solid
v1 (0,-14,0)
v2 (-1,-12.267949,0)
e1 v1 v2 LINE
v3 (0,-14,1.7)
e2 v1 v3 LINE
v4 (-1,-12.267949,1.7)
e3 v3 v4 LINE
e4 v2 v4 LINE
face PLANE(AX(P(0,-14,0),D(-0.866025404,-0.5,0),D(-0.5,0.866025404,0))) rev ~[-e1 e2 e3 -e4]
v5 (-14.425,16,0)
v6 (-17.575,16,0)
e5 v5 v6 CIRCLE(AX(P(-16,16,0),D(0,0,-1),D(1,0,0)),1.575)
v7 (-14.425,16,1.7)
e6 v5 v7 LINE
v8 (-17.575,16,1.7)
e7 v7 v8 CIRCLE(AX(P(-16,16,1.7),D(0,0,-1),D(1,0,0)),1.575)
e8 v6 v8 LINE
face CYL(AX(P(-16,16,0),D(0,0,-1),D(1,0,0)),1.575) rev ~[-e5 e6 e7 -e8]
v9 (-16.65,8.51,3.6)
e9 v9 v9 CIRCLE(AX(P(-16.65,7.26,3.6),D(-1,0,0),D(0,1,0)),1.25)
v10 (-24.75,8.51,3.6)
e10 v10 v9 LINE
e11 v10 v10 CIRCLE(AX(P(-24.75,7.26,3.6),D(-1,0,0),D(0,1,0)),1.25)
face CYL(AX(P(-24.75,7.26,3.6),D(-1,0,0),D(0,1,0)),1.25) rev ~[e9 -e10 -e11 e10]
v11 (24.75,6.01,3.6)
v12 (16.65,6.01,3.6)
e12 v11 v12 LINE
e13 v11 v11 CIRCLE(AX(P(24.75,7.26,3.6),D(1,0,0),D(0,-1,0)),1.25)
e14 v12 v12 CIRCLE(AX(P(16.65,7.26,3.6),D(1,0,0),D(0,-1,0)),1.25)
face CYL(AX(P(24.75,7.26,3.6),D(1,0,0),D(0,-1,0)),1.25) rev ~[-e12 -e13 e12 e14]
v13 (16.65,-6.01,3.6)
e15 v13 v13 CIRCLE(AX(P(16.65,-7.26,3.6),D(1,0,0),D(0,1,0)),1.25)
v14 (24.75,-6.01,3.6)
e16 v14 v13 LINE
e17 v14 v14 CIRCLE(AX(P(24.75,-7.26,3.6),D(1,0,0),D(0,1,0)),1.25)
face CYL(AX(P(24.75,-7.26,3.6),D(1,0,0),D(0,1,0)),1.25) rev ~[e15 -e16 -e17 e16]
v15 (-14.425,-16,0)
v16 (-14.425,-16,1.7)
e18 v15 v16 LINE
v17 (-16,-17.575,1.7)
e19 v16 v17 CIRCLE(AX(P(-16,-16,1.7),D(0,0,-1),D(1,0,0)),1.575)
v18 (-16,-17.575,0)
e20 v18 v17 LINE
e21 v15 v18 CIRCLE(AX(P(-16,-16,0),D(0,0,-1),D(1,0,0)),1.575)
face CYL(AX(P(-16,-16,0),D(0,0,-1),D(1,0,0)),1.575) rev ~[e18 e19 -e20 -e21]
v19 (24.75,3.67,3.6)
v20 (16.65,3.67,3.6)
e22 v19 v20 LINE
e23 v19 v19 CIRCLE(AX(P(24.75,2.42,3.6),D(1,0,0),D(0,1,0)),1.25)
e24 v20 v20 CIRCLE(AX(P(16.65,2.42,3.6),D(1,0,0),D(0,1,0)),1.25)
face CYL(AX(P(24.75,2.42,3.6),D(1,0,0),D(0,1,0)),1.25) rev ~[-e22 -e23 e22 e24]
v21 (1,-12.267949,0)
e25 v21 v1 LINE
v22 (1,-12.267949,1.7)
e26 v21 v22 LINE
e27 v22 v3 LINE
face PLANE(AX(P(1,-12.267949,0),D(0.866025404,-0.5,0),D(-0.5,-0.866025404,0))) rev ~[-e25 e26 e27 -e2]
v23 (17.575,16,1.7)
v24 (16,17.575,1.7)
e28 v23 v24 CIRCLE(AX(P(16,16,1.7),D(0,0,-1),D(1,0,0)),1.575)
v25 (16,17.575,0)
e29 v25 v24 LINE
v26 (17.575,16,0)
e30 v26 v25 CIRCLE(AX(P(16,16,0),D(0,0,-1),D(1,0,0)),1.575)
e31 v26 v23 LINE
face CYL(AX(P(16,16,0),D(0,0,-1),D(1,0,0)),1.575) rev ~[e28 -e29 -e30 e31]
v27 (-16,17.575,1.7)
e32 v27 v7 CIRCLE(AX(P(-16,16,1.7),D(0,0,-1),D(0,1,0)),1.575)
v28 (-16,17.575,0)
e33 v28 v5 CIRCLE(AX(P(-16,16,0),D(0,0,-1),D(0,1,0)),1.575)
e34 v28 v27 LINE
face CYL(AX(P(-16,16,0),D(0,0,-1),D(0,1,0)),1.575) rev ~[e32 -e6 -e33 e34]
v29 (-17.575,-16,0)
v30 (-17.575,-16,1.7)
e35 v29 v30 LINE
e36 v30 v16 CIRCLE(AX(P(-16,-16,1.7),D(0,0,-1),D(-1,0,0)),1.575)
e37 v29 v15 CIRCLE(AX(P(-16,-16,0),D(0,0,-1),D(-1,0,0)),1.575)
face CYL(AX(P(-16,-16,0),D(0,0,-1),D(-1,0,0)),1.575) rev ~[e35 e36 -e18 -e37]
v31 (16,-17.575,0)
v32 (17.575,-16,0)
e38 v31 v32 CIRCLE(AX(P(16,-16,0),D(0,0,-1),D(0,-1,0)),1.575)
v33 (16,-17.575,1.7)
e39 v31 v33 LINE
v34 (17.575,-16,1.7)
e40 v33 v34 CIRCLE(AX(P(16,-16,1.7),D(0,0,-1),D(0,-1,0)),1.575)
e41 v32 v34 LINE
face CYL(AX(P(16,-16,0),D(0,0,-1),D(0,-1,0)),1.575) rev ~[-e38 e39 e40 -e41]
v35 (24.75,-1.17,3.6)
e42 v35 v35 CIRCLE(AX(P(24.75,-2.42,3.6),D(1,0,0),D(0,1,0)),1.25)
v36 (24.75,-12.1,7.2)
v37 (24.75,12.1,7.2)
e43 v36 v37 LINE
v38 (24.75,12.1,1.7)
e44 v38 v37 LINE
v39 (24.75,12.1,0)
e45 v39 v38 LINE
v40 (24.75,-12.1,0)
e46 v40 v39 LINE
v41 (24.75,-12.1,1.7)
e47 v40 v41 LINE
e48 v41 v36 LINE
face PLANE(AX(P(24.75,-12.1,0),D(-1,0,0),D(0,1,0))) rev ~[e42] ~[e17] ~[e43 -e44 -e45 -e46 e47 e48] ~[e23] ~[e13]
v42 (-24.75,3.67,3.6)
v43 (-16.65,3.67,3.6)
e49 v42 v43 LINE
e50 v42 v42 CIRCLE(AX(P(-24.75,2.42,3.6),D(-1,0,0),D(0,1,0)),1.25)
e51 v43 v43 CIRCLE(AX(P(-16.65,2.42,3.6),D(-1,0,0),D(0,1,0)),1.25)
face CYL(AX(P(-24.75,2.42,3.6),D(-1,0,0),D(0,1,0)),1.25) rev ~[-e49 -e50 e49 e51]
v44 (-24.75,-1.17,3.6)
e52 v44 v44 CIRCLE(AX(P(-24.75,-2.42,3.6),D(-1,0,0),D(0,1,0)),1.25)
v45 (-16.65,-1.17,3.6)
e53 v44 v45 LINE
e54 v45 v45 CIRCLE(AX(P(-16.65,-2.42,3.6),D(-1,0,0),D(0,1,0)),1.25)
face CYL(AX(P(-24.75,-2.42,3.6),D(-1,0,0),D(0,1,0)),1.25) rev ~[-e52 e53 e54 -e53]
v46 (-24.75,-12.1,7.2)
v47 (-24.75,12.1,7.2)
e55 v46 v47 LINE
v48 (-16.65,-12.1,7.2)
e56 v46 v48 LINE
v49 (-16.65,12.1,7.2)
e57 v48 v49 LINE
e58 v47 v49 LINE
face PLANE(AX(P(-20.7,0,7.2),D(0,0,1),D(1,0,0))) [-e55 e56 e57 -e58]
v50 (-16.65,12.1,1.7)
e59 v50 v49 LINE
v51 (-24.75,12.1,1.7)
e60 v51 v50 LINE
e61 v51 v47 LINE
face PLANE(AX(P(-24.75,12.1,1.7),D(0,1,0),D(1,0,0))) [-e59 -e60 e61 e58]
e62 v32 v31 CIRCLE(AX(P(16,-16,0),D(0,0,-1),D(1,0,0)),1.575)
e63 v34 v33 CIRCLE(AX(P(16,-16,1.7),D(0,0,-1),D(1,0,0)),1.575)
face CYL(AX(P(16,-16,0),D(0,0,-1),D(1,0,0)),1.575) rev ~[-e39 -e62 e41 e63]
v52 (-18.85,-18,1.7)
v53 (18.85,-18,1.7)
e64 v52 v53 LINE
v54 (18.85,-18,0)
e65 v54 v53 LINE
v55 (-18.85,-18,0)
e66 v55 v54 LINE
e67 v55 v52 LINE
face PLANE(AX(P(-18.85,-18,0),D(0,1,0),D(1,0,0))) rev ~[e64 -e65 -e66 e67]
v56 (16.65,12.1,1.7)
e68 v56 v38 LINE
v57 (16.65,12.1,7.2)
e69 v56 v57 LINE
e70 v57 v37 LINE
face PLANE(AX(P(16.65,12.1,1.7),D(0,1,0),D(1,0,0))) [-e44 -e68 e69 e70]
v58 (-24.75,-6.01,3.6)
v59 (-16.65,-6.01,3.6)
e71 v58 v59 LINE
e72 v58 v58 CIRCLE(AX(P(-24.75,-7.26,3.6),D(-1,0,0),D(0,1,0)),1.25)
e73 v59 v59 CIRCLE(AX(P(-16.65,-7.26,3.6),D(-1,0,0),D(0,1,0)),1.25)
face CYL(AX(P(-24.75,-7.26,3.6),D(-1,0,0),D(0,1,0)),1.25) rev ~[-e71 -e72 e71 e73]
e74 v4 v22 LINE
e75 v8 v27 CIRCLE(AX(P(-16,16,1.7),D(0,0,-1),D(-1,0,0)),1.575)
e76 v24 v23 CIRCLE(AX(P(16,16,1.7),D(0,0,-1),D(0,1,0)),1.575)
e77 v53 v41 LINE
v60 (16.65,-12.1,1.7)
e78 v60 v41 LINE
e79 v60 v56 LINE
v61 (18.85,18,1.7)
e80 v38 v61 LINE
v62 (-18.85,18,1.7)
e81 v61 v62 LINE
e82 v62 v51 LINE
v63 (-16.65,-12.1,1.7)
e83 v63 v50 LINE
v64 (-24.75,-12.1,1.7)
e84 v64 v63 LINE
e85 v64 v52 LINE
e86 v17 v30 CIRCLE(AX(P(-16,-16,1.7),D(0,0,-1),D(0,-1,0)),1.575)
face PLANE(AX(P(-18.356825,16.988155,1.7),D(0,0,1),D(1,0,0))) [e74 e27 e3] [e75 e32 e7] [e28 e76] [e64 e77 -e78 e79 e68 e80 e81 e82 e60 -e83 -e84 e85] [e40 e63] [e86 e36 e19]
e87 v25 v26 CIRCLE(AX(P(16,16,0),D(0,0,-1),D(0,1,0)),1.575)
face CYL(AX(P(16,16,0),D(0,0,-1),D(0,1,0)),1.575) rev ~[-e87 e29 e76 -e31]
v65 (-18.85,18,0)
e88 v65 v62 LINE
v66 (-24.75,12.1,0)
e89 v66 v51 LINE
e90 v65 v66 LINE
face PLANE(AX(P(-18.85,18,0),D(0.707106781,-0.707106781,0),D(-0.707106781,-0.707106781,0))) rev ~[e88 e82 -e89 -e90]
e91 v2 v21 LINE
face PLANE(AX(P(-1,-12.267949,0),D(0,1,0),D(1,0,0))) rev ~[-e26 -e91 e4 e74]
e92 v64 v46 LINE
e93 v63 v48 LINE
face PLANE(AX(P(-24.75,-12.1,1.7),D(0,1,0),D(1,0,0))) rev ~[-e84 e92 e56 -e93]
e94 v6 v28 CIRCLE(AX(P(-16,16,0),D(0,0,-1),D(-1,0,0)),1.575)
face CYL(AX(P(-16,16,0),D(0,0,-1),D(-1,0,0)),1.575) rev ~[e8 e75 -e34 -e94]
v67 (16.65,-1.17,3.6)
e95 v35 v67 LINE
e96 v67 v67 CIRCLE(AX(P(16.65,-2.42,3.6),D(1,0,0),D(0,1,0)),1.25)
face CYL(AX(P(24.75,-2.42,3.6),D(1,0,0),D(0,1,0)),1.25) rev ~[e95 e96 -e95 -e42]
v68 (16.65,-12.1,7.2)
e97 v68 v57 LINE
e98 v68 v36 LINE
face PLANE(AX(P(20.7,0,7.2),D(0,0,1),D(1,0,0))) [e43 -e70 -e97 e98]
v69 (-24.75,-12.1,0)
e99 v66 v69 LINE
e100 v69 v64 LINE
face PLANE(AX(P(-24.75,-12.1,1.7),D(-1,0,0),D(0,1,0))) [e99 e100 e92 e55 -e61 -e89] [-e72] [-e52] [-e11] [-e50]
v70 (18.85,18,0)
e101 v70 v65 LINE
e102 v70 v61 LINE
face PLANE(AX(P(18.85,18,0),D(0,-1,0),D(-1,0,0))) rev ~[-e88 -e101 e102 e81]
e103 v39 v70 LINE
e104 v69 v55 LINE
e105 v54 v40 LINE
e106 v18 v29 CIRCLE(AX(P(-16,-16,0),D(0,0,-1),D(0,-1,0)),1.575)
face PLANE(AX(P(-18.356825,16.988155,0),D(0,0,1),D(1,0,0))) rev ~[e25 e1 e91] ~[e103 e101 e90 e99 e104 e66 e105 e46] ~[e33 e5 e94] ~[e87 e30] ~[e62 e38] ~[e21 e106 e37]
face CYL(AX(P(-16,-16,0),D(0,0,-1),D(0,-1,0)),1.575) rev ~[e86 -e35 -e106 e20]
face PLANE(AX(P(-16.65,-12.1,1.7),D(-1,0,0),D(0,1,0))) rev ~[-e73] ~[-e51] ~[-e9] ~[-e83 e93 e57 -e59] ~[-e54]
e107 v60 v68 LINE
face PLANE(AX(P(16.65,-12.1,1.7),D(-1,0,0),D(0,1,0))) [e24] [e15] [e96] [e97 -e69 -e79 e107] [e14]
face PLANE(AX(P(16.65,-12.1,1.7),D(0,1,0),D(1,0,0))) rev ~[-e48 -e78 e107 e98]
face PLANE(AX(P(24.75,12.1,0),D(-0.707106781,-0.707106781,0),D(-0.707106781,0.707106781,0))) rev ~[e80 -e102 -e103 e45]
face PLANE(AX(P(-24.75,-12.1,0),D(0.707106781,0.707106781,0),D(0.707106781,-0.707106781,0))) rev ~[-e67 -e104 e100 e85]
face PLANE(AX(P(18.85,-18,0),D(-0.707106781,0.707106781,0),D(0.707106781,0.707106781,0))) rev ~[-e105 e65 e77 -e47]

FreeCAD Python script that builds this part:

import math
import FreeCAD as App
import Part
import Sketcher
from FreeCAD import Vector
Q = App.Units.Quantity

doc = App.newDocument("Part")
body = doc.addObject("PartDesign::Body", "Body")

sketch1 = body.newObject("Sketcher::SketchObject", "Sketch")
sketch1.AttachmentSupport = (doc.getObject("XY_Plane"), [""])
sketch1.MapMode = "FlatFace"
sketch1.addGeometry([
    Part.LineSegment(Vector(-18.85, 18, 0), Vector(-24.75, 12.1, 0)),
    Part.LineSegment(Vector(-24.75, 12.1, 0), Vector(-24.75, -12.1, 0)),
    Part.LineSegment(Vector(-24.75, -12.1, 0), Vector(-18.85, -18, 0)),
    Part.LineSegment(Vector(-18.85, -18, 0), Vector(18.85, -18, 0)),
    Part.LineSegment(Vector(18.85, -18, 0), Vector(24.75, -12.1, 0)),
    Part.LineSegment(Vector(24.75, -12.1, 0), Vector(24.75, 12.1, 0)),
    Part.LineSegment(Vector(24.75, 12.1, 0), Vector(18.85, 18, 0)),
    Part.LineSegment(Vector(18.85, 18, 0), Vector(-18.85, 18, 0)),
    Part.ArcOfCircle(Part.Circle(Vector(-16, -16, 0), Vector(0, 0, 1), 1.575), math.radians(0), math.radians(180)),
    Part.ArcOfCircle(Part.Circle(Vector(-16, -16, 0), Vector(0, 0, 1), 1.575), math.radians(-90), math.radians(0)),
    Part.ArcOfCircle(Part.Circle(Vector(-16, -16, 0), Vector(0, 0, 1), 1.575), math.radians(180), math.radians(270)),
    Part.ArcOfCircle(Part.Circle(Vector(16, -16, 0), Vector(0, 0, 1), 1.575), math.radians(0), math.radians(270)),
    Part.ArcOfCircle(Part.Circle(Vector(16, -16, 0), Vector(0, 0, 1), 1.575), math.radians(-90), math.radians(0)),
    Part.ArcOfCircle(Part.Circle(Vector(16, 16, 0), Vector(0, 0, 1), 1.575), math.radians(90), math.radians(360)),
    Part.ArcOfCircle(Part.Circle(Vector(16, 16, 0), Vector(0, 0, 1), 1.575), math.radians(0), math.radians(90)),
    Part.LineSegment(Vector(-1, -12.267949, 0), Vector(1, -12.267949, 0)),
    Part.LineSegment(Vector(1, -12.267949, 0), Vector(0, -14, 0)),
    Part.LineSegment(Vector(0, -14, 0), Vector(-1, -12.267949, 0)),
    Part.ArcOfCircle(Part.Circle(Vector(-16, 16, 0), Vector(0, 0, 1), 1.575), math.radians(90), math.radians(180)),
    Part.ArcOfCircle(Part.Circle(Vector(-16, 16, 0), Vector(0, 0, 1), 1.575), math.radians(0), math.radians(90)),
    Part.ArcOfCircle(Part.Circle(Vector(-16, 16, 0), Vector(0, 0, 1), 1.575), math.radians(180), math.radians(360)),
], False)
sketch1.addConstraint([
    Sketcher.Constraint("Coincident", 0, 2, 1, 1),
    Sketcher.Constraint("Coincident", 1, 2, 2, 1),
    Sketcher.Constraint("Coincident", 2, 2, 3, 1),
    Sketcher.Constraint("Coincident", 3, 2, 4, 1),
    Sketcher.Constraint("Coincident", 4, 2, 5, 1),
    Sketcher.Constraint("Coincident", 5, 2, 6, 1),
    Sketcher.Constraint("Coincident", 6, 2, 7, 1),
    Sketcher.Constraint("Coincident", 7, 2, 0, 1),
    Sketcher.Constraint("Tangent", 8, 1, 9, 2),
    Sketcher.Constraint("Tangent", 9, 1, 10, 2),
    Sketcher.Constraint("Tangent", 10, 1, 8, 2),
    Sketcher.Constraint("Tangent", 11, 1, 12, 2),
    Sketcher.Constraint("Coincident", 12, 1, 11, 2),
    Sketcher.Constraint("Tangent", 13, 1, 14, 2),
    Sketcher.Constraint("Coincident", 14, 1, 13, 2),
    Sketcher.Constraint("Coincident", 15, 2, 16, 1),
    Sketcher.Constraint("Coincident", 16, 2, 17, 1),
    Sketcher.Constraint("Coincident", 17, 2, 15, 1),
    Sketcher.Constraint("Tangent", 18, 1, 19, 2),
    Sketcher.Constraint("Tangent", 19, 1, 20, 2),
    Sketcher.Constraint("Tangent", 20, 1, 18, 2),
    Sketcher.Constraint("Vertical", 1),
    Sketcher.Constraint("Horizontal", 3),
    Sketcher.Constraint("Vertical", 5),
    Sketcher.Constraint("Horizontal", 7),
    Sketcher.Constraint("Horizontal", 15),
    Sketcher.Constraint("Equal", 10, 11),
    Sketcher.Constraint("Equal", 12, 13),
    Sketcher.Constraint("Equal", 14, 18),
    Sketcher.Constraint("Symmetric", 8, 3, 13, 3, -1, 1),
    Sketcher.Constraint("Symmetric", 11, 3, 18, 3, -1, 1),
    Sketcher.Constraint("Symmetric", 0, 2, 4, 2, -1, 1),
    Sketcher.Constraint("Symmetric", 2, 2, 6, 2, -1, 1),
    Sketcher.Constraint("Symmetric", 8, 3, 11, 3, -2),
    Sketcher.Constraint("PointOnObject", 16, 2, -2),
    Sketcher.Constraint("Perpendicular", 0, 2),
    Sketcher.Constraint("Perpendicular", 2, 4),
    Sketcher.Constraint("Perpendicular", 4, 6),
    Sketcher.Constraint("Horizontal", 1, 2, 4, 2),
    Sketcher.Constraint("Horizontal", 12, 3, 8, 1),
    Sketcher.Constraint("Horizontal", 8, 1, 10, 1),
    Sketcher.Constraint("Horizontal", 10, 1, 11, 1),
    Sketcher.Constraint("Horizontal", 20, 3, 14, 1),
    Sketcher.Constraint("Horizontal", 14, 1, 19, 1),
    Sketcher.Constraint("Horizontal", 19, 1, 20, 1),
    Sketcher.Constraint("Vertical", 3, 2, 6, 2),
    Sketcher.Constraint("Vertical", 20, 3, 9, 1),
    Sketcher.Constraint("Vertical", 14, 3, 12, 1),
    Sketcher.Constraint("Vertical", 12, 1, 13, 1),
    Sketcher.Constraint("Vertical", 9, 1, 18, 1),
    Sketcher.Constraint("Equal", 16, 17),
    Sketcher.Constraint("DistanceX", 15, 1, 15, 2, Q("2 mm")),
    Sketcher.Constraint("Angle", 16, Q("-120 deg")),
    Sketcher.Constraint("DistanceX", 3, 1, 3, 2, Q("37.7 mm")),
    Sketcher.Constraint("DistanceY", 1, 2, 1, 1, Q("24.2 mm")),
    Sketcher.Constraint("DistanceX", 8, 3, -1, 1, Q("16 mm")),
    Sketcher.Constraint("DistanceY", 8, 3, -1, 1, Q("16 mm")),
    Sketcher.Constraint("DistanceY", 2, 2, -1, 1, Q("18 mm")),
    Sketcher.Constraint("DistanceY", 16, 2, -1, 1, Q("14 mm")),
    Sketcher.Constraint("Radius", 8, Q("1.575 mm")),
])
pad1 = body.newObject("PartDesign::Pad", "Pad")
pad1.Profile = sketch1
pad1.Length = 1.7

sketch2 = body.newObject("Sketcher::SketchObject", "Sketch001")
sketch2.AttachmentSupport = (doc.getObject("XY_Plane"), [""])
sketch2.MapMode = "FlatFace"
sketch2.AttachmentOffset = App.Placement(Vector(0, 0, 1.7), App.Rotation())
sketch2.addGeometry([
    Part.LineSegment(Vector(-24.75, 12.1, 0), Vector(-24.75, -12.1, 0)),
    Part.LineSegment(Vector(-24.75, -12.1, 0), Vector(-16.65, -12.1, 0)),
    Part.LineSegment(Vector(-16.65, -12.1, 0), Vector(-16.65, 12.1, 0)),
    Part.LineSegment(Vector(-16.65, 12.1, 0), Vector(-24.75, 12.1, 0)),
    Part.LineSegment(Vector(16.65, 12.1, 0), Vector(16.65, -12.1, 0)),
    Part.LineSegment(Vector(16.65, -12.1, 0), Vector(24.75, -12.1, 0)),
    Part.LineSegment(Vector(24.75, -12.1, 0), Vector(24.75, 12.1, 0)),
    Part.LineSegment(Vector(24.75, 12.1, 0), Vector(16.65, 12.1, 0)),
], False)
sketch2.addConstraint([
    Sketcher.Constraint("Coincident", 0, 2, 1, 1),
    Sketcher.Constraint("Coincident", 1, 2, 2, 1),
    Sketcher.Constraint("Coincident", 2, 2, 3, 1),
    Sketcher.Constraint("Coincident", 3, 2, 0, 1),
    Sketcher.Constraint("Coincident", 4, 2, 5, 1),
    Sketcher.Constraint("Coincident", 5, 2, 6, 1),
    Sketcher.Constraint("Coincident", 6, 2, 7, 1),
    Sketcher.Constraint("Coincident", 7, 2, 4, 1),
    Sketcher.Constraint("Vertical", 0),
    Sketcher.Constraint("Horizontal", 1),
    Sketcher.Constraint("Vertical", 2),
    Sketcher.Constraint("Horizontal", 3),
    Sketcher.Constraint("Vertical", 4),
    Sketcher.Constraint("Horizontal", 5),
    Sketcher.Constraint("Vertical", 6),
    Sketcher.Constraint("Horizontal", 7),
    Sketcher.Constraint("Symmetric", 2, 2, 4, 2, -1, 1),
    Sketcher.Constraint("Symmetric", 0, 2, 6, 2, -1, 1),
    Sketcher.Constraint("Horizontal", 1, 2, 4, 2),
    Sketcher.Constraint("DistanceX", 1, 1, 1, 2, Q("8.1 mm")),
    Sketcher.Constraint("DistanceY", 0, 2, 0, 1, Q("24.2 mm")),
    Sketcher.Constraint("DistanceX", 1, 2, 4, 2, Q("33.3 mm")),
])
pad2 = body.newObject("PartDesign::Pad", "Pad001")
pad2.Profile = sketch2
pad2.Length = 5.5

sketch3 = body.newObject("Sketcher::SketchObject", "Sketch002")
sketch3.AttachmentSupport = (doc.getObject("YZ_Plane"), [""])
sketch3.MapMode = "FlatFace"
sketch3.AttachmentOffset = App.Placement(Vector(0, 0, 24.75), App.Rotation())
sketch3.addGeometry([
    Part.Circle(Vector(7.26, 3.6, 0), Vector(0, 0, 1), 1.25),
    Part.Circle(Vector(2.42, 3.6, 0), Vector(0, 0, 1), 1.25),
    Part.Circle(Vector(-2.42, 3.6, 0), Vector(0, 0, 1), 1.25),
    Part.Circle(Vector(-7.26, 3.6, 0), Vector(0, 0, 1), 1.25),
], False)
sketch3.addConstraint([
    Sketcher.Constraint("Equal", 0, 1),
    Sketcher.Constraint("Equal", 1, 2),
    Sketcher.Constraint("Equal", 2, 3),
    Sketcher.Constraint("Symmetric", 1, 3, 2, 3, -2),
    Sketcher.Constraint("Symmetric", 0, 3, 3, 3, -2),
    Sketcher.Constraint("Horizontal", 0, 3, 1, 3),
    Sketcher.Constraint("Diameter", 0, Q("2.5 mm")),
    Sketcher.Constraint("DistanceY", -1, 1, 0, 3, Q("3.6 mm")),
    Sketcher.Constraint("DistanceX", -1, 1, 0, 3, Q("7.26 mm")),
    Sketcher.Constraint("DistanceX", -1, 1, 1, 3, Q("2.42 mm")),
])
pocket1 = body.newObject("PartDesign::Pocket", "Pocket")
pocket1.Profile = sketch3
pocket1.Length = 8.1

sketch4 = body.newObject("Sketcher::SketchObject", "Sketch003")
sketch4.AttachmentSupport = (doc.getObject("YZ_Plane"), [""])
sketch4.MapMode = "FlatFace"
sketch4.AttachmentOffset = App.Placement(Vector(0, 0, -24.75), App.Rotation())
sketch4.addGeometry([
    Part.Circle(Vector(-7.26, 3.6, 0), Vector(0, 0, 1), 1.25),
    Part.Circle(Vector(-2.42, 3.6, 0), Vector(0, 0, 1), 1.25),
    Part.Circle(Vector(2.42, 3.6, 0), Vector(0, 0, 1), 1.25),
    Part.Circle(Vector(7.26, 3.6, 0), Vector(0, 0, 1), 1.25),
], False)
sketch4.addConstraint([
    Sketcher.Constraint("Equal", 0, 1),
    Sketcher.Constraint("Equal", 1, 2),
    Sketcher.Constraint("Equal", 2, 3),
    Sketcher.Constraint("Symmetric", 1, 3, 2, 3, -2),
    Sketcher.Constraint("Symmetric", 0, 3, 3, 3, -2),
    Sketcher.Constraint("Horizontal", 0, 3, 1, 3),
    Sketcher.Constraint("Diameter", 0, Q("2.5 mm")),
    Sketcher.Constraint("DistanceY", -1, 1, 0, 3, Q("3.6 mm")),
    Sketcher.Constraint("DistanceX", 0, 3, -1, 1, Q("7.26 mm")),
    Sketcher.Constraint("DistanceX", 1, 3, -1, 1, Q("2.42 mm")),
])
pocket2 = body.newObject("PartDesign::Pocket", "Pocket001")
pocket2.Profile = sketch4
pocket2.Length = 8.1
pocket2.Reversed = True

doc.recompute()
